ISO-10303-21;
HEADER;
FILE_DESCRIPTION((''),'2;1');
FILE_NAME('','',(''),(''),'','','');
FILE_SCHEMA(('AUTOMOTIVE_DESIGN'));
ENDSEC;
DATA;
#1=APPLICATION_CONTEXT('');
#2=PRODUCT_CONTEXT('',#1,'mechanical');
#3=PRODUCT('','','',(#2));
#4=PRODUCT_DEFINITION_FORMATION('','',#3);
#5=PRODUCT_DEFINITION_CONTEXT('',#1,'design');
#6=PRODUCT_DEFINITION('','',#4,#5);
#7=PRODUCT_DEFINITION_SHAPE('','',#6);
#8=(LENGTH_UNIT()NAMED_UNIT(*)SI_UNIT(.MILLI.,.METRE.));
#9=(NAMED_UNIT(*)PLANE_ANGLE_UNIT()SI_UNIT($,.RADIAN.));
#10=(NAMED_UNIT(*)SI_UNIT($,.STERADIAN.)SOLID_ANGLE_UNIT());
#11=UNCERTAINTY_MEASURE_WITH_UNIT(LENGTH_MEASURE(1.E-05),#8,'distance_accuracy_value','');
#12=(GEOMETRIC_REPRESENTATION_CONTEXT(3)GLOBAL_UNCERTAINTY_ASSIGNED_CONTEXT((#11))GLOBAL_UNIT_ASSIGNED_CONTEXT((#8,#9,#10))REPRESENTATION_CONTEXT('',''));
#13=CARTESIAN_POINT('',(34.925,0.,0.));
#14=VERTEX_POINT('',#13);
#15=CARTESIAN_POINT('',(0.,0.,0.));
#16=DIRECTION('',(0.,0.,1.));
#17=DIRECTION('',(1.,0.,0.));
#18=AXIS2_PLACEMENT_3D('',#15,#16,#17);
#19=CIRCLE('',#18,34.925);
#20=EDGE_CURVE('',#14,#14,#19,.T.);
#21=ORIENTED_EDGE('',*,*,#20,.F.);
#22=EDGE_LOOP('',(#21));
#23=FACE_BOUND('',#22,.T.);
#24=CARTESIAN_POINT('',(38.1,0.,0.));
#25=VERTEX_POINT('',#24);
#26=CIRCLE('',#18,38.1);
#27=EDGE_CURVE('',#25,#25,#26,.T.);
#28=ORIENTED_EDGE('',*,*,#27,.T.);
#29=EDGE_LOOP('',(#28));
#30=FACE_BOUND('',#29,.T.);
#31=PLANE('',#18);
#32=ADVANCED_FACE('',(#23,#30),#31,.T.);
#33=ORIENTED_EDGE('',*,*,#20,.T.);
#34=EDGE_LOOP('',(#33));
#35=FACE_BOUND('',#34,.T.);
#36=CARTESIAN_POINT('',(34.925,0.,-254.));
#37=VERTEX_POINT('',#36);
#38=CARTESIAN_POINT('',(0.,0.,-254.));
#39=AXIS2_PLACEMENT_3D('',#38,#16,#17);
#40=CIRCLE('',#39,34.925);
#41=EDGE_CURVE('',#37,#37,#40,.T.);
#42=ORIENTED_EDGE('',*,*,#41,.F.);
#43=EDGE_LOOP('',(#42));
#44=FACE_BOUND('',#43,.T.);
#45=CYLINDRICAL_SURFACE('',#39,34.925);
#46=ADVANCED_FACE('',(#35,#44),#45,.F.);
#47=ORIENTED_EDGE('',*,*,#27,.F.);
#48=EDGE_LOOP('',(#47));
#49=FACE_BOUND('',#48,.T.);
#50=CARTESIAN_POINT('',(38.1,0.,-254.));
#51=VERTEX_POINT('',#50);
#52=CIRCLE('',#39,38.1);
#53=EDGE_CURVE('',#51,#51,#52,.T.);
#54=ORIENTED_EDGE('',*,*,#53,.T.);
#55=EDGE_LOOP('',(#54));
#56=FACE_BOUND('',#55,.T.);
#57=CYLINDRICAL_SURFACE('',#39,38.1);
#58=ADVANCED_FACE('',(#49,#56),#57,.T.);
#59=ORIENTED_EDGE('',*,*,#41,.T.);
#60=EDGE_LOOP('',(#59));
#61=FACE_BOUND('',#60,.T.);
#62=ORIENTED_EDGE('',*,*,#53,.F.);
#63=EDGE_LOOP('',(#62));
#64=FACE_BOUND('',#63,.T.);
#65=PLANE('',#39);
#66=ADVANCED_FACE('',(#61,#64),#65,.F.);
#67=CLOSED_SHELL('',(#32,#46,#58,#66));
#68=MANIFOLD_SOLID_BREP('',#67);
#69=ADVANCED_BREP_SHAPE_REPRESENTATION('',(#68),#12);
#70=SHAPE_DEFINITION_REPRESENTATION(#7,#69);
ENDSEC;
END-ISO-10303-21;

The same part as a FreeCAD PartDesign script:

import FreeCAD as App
import Part
import Sketcher
from FreeCAD import Vector
Q = App.Units.Quantity

doc = App.newDocument("Part")
body = doc.addObject("PartDesign::Body", "Body")

# Sketch on XY plane
sketch1 = doc.addObject("Sketcher::SketchObject", "Sketch")
body.addObject(sketch1)
sketch1.AttachmentSupport = (doc.XY_Plane, [""])
sketch1.MapMode = "FlatFace"
sketch1.addGeometry(Part.Circle(Vector(0, 0, 0), Vector(0, 0, 1), 38.1), False)
sketch1.addGeometry(Part.Circle(Vector(0, 0, 0), Vector(0, 0, 1), 34.925), False)
sketch1.addConstraint(Sketcher.Constraint("Coincident", 0, 3, -1, 1))
sketch1.addConstraint(Sketcher.Constraint("Coincident", 1, 3, -1, 1))
sketch1.addConstraint(Sketcher.Constraint("Diameter", 0, Q("3 in")))
sketch1.addConstraint(Sketcher.Constraint("Diameter", 1, Q("2.75 in")))
pad1 = doc.addObject("PartDesign::Pad", "Pad")
body.addObject(pad1)
pad1.Profile = sketch1
pad1.Length = Q("10 in")
pad1.Reversed = True

doc.recompute()
